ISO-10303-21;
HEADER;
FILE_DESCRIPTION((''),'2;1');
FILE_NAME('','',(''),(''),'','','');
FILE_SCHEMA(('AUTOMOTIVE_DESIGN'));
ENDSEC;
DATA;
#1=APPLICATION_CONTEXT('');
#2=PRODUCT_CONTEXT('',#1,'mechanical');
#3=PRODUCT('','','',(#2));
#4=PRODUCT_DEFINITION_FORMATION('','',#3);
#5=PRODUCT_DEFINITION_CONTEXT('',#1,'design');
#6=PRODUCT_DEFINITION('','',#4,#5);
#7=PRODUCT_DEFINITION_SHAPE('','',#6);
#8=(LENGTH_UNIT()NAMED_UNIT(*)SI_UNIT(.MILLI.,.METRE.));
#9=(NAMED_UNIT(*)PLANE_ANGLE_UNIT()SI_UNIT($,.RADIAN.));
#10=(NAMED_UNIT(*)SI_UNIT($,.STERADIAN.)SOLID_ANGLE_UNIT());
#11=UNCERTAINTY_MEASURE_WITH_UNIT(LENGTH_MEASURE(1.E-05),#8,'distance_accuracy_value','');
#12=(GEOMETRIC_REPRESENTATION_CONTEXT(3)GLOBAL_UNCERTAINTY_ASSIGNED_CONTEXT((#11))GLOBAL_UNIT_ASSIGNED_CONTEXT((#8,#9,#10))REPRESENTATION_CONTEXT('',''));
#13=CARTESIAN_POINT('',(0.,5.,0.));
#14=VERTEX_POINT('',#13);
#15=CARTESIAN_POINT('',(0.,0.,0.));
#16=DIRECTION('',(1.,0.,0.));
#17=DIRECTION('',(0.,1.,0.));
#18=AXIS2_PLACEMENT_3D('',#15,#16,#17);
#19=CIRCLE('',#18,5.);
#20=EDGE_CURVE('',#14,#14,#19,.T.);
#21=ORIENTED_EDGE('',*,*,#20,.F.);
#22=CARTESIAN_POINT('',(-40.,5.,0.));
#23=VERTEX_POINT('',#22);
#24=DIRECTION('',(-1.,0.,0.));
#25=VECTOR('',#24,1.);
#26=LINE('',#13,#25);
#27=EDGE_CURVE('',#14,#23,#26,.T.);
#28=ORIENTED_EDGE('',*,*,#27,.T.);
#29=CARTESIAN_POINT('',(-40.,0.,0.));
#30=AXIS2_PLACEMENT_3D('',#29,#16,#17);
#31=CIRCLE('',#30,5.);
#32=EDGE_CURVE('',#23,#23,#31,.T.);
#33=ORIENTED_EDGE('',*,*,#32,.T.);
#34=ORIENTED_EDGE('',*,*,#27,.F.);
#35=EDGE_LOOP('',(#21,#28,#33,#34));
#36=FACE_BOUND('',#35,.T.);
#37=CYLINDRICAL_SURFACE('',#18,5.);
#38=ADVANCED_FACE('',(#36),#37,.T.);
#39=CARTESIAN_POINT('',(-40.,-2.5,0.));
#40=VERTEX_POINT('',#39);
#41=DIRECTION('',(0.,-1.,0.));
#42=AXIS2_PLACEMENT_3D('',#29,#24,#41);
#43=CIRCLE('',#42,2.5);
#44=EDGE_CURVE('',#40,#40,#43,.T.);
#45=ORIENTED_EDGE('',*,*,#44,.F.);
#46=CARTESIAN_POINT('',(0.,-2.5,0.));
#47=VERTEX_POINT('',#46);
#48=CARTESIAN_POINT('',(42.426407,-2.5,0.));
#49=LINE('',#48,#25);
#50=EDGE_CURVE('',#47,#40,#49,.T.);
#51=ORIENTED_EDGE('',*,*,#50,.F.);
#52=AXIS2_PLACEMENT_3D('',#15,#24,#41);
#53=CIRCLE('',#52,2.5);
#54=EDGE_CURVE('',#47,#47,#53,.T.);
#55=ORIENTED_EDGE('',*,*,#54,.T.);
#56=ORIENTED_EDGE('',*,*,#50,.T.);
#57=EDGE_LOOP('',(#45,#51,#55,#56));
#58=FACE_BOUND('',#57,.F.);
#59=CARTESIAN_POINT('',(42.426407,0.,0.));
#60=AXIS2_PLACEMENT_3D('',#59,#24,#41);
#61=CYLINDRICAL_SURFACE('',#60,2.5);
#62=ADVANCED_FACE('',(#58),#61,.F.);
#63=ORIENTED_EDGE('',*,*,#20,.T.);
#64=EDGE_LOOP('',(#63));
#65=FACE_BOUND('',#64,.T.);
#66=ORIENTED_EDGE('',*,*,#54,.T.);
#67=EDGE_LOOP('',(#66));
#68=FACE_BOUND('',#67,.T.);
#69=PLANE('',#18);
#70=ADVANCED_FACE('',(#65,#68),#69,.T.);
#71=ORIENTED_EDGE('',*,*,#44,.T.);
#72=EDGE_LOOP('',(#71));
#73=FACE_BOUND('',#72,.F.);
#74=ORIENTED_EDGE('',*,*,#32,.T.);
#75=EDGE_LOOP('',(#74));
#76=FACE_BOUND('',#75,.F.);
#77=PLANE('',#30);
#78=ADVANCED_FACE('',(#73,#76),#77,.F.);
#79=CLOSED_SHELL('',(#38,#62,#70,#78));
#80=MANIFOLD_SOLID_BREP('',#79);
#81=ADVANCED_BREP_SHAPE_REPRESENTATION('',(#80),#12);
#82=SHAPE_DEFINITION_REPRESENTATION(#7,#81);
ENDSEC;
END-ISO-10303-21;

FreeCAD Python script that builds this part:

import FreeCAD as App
import Part
import Sketcher
from FreeCAD import Vector
Q = App.Units.Quantity

doc = App.newDocument("Part")
body = doc.addObject("PartDesign::Body", "Body")

sketch1 = body.newObject("Sketcher::SketchObject", "Sketch")
sketch1.AttachmentSupport = (doc.getObject("YZ_Plane"), [""])
sketch1.MapMode = "FlatFace"
sketch1.addGeometry(Part.Circle(Vector(0, 0, 0), Vector(0, 0, 1), 5), False)
sketch1.addConstraint([
    Sketcher.Constraint("Coincident", 0, 3, -1, 1),
    Sketcher.Constraint("Diameter", 0, Q("10 mm")),
])
pad1 = body.newObject("PartDesign::Pad", "Pad")
pad1.Profile = sketch1
pad1.Length = 40
pad1.Reversed = True

sketch2 = body.newObject("Sketcher::SketchObject", "Sketch001")
sketch2.AttachmentSupport = (doc.getObject("YZ_Plane"), [""])
sketch2.MapMode = "FlatFace"
sketch2.addGeometry(Part.Circle(Vector(0, 0, 0), Vector(0, 0, 1), 2.5), False)
sketch2.addConstraint([
    Sketcher.Constraint("Coincident", 0, 3, -1, 1),
    Sketcher.Constraint("Diameter", 0, Q("5 mm")),
])
doc.recompute()
hole = body.newObject("PartDesign::Hole", "Hole")
hole.Profile = sketch2
hole.ThreadType = "None"
hole.Diameter = 5
hole.DepthType = "ThroughAll"

doc.recompute()
